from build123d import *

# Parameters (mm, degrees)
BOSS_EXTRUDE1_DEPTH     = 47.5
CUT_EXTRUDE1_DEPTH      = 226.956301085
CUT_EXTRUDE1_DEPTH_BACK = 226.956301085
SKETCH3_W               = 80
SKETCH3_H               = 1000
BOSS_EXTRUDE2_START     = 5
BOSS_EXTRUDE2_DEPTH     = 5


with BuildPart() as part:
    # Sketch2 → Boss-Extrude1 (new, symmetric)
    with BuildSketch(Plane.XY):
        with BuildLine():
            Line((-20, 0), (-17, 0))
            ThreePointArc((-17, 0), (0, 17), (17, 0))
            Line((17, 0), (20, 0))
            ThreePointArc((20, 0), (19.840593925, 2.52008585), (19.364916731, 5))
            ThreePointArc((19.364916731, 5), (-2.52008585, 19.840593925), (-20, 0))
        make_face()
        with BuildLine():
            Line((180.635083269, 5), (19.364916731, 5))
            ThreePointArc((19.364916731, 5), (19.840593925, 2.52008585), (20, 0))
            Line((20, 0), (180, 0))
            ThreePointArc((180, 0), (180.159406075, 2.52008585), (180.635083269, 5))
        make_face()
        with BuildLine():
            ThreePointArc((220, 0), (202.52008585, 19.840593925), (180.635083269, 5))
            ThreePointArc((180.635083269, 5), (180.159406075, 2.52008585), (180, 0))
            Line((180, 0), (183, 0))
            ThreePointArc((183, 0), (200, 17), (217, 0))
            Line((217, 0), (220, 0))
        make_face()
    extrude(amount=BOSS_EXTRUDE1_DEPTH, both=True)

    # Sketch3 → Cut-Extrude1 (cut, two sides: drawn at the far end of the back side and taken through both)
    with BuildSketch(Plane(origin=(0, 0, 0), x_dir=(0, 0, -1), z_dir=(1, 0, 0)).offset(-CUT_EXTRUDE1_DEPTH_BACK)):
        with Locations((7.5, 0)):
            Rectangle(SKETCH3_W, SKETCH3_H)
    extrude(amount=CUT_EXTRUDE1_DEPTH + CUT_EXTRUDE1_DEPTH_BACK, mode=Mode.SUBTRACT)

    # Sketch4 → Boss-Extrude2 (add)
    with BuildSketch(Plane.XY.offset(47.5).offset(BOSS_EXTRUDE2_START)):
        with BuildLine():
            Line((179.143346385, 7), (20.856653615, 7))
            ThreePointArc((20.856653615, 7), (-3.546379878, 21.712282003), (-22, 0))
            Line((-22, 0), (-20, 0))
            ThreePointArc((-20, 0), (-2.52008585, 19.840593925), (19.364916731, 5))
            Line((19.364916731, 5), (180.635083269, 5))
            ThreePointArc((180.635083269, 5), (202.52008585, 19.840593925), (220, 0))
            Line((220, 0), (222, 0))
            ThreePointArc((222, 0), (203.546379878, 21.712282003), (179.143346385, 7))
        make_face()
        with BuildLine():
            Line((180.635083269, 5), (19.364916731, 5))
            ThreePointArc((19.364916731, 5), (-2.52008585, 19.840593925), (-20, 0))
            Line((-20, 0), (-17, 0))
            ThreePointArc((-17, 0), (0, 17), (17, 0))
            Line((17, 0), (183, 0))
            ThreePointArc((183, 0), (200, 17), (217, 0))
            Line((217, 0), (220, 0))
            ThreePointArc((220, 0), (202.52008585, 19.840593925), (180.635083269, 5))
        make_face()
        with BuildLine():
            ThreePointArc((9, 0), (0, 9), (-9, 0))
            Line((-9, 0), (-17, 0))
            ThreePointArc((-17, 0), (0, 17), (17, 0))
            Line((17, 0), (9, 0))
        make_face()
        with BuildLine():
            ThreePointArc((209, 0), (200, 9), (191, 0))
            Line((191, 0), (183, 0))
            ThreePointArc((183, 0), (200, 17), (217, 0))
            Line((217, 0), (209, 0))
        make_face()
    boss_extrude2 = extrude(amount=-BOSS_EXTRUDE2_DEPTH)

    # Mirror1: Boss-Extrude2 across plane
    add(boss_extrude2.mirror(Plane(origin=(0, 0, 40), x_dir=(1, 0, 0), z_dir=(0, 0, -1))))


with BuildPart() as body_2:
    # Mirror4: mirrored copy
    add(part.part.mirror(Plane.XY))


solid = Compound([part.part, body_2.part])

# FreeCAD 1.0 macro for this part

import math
import FreeCAD as App
import Part
import Sketcher
Q = App.Units.Quantity

doc = App.newDocument("Part")
body = doc.addObject("PartDesign::Body", "Body")

# Sketch on XY plane
sketch1 = body.newObject("Sketcher::SketchObject", "Sketch")
sketch1.AttachmentSupport = (doc.getObject("XY_Plane"), [""])
sketch1.MapMode = "FlatFace"
sketch1.addGeometry([
    Part.LineSegment(App.Vector(-20, 0, 0), App.Vector(-17, 0, 0)),  # 0
    Part.ArcOfCircle(Part.Circle(App.Vector(0, 0, 0), App.Vector(0, 0, 1), 17), math.radians(0), math.radians(180)),  # 1
    Part.LineSegment(App.Vector(17, 0, 0), App.Vector(183, 0, 0)),  # 2
    Part.ArcOfCircle(Part.Circle(App.Vector(200, 0, 0), App.Vector(0, 0, 1), 17), math.radians(0), math.radians(180)),  # 3
    Part.LineSegment(App.Vector(217, 0, 0), App.Vector(220, 0, 0)),  # 4
    Part.ArcOfCircle(Part.Circle(App.Vector(200, 0, 0), App.Vector(0, 0, 1), 20), math.radians(0), math.radians(165.522488)),  # 5
    Part.LineSegment(App.Vector(180.635083, 5, 0), App.Vector(19.364917, 5, 0)),  # 6
    Part.ArcOfCircle(Part.Circle(App.Vector(0, 0, 0), App.Vector(0, 0, 1), 20), math.radians(14.477512), math.radians(180)),  # 7
], False)
sketch1.addConstraint([
    Sketcher.Constraint("Coincident", 0, 2, 1, 2),
    Sketcher.Constraint("Coincident", 1, 1, 2, 1),
    Sketcher.Constraint("Coincident", 2, 2, 3, 2),
    Sketcher.Constraint("Coincident", 3, 1, 4, 1),
    Sketcher.Constraint("Coincident", 4, 2, 5, 1),
    Sketcher.Constraint("Coincident", 5, 2, 6, 1),
    Sketcher.Constraint("Coincident", 6, 2, 7, 1),
    Sketcher.Constraint("Coincident", 7, 2, 0, 1),
    Sketcher.Constraint("Horizontal", 0),
    Sketcher.Constraint("Horizontal", 2),
    Sketcher.Constraint("Horizontal", 4),
    Sketcher.Constraint("Horizontal", 6),
    Sketcher.Constraint("Coincident", 1, 3, -1, 1),
    Sketcher.Constraint("Coincident", 7, 3, -1, 1),
    Sketcher.Constraint("Coincident", 5, 3, 3, 3),
    Sketcher.Constraint("Equal", 1, 3),
    Sketcher.Constraint("Equal", 5, 7),
    Sketcher.Constraint("PointOnObject", 3, 3, -1),
    Sketcher.Constraint("PointOnObject", 0, 2, -1),
    Sketcher.Constraint("PointOnObject", 1, 1, -1),
    Sketcher.Constraint("PointOnObject", 3, 1, -1),
    Sketcher.Constraint("Radius", 1, Q("17 mm")),
    Sketcher.Constraint("Radius", 5, Q("20 mm")),
    Sketcher.Constraint("DistanceX", 2, 1, 2, 2, Q("166 mm")),
    Sketcher.Constraint("DistanceY", -1, 1, 5, 2, Q("5 mm")),
])
pad1 = body.newObject("PartDesign::Pad", "Pad")
pad1.Profile = sketch1
pad1.Length = 95
pad1.Midplane = True

# Sketch on YZ plane
sketch2 = body.newObject("Sketcher::SketchObject", "Sketch001")
sketch2.AttachmentSupport = (doc.getObject("YZ_Plane"), [""])
sketch2.MapMode = "FlatFace"
sketch2.addGeometry([
    Part.LineSegment(App.Vector(500, 32.5, 0), App.Vector(-500, 32.5, 0)),
    Part.LineSegment(App.Vector(-500, 32.5, 0), App.Vector(-500, -47.5, 0)),
    Part.LineSegment(App.Vector(-500, -47.5, 0), App.Vector(500, -47.5, 0)),
    Part.LineSegment(App.Vector(500, -47.5, 0), App.Vector(500, 32.5, 0)),
], False)
sketch2.addConstraint([
    Sketcher.Constraint("Coincident", 0, 2, 1, 1),
    Sketcher.Constraint("Coincident", 1, 2, 2, 1),
    Sketcher.Constraint("Coincident", 2, 2, 3, 1),
    Sketcher.Constraint("Coincident", 3, 2, 0, 1),
    Sketcher.Constraint("Horizontal", 0),
    Sketcher.Constraint("Vertical", 1),
    Sketcher.Constraint("Horizontal", 2),
    Sketcher.Constraint("Vertical", 3),
    Sketcher.Constraint("DistanceX", 0, 2, 0, 1, Q("1000 mm")),
    Sketcher.Constraint("DistanceY", 1, 2, 1, 1, Q("80 mm")),
    Sketcher.Constraint("DistanceX", 0, 2, -1, 1, Q("500 mm")),
    Sketcher.Constraint("DistanceY", -1, 1, 0, 2, Q("32.5 mm")),
])
pocket1 = body.newObject("PartDesign::Pocket", "Pocket")
pocket1.Profile = sketch2
pocket1.Type = "ThroughAll"
pocket1.Midplane = True

# Sketch on XY plane
sketch3 = body.newObject("Sketcher::SketchObject", "Sketch002")
sketch3.AttachmentSupport = (doc.getObject("XY_Plane"), [""])
sketch3.MapMode = "FlatFace"
sketch3.AttachmentOffset = App.Placement(App.Vector(0, 0, 52.5), App.Rotation())
sketch3.addGeometry([
    Part.LineSegment(App.Vector(179.143346, 7, 0), App.Vector(20.856654, 7, 0)),  # 0
    Part.ArcOfCircle(Part.Circle(App.Vector(0, 0, 0), App.Vector(0, 0, 1), 22), math.radians(18.553005), math.radians(180)),  # 1
    Part.LineSegment(App.Vector(-22, 0, 0), App.Vector(-9, 0, 0)),  # 2
    Part.ArcOfCircle(Part.Circle(App.Vector(0, 0, 0), App.Vector(0, 0, 1), 9), math.radians(0), math.radians(180)),  # 3
    Part.LineSegment(App.Vector(9, 0, 0), App.Vector(191, 0, 0)),  # 4
    Part.ArcOfCircle(Part.Circle(App.Vector(200, 0, 0), App.Vector(0, 0, 1), 9), math.radians(0), math.radians(180)),  # 5
    Part.LineSegment(App.Vector(209, 0, 0), App.Vector(222, 0, 0)),  # 6
    Part.ArcOfCircle(Part.Circle(App.Vector(200, 0, 0), App.Vector(0, 0, 1), 22), math.radians(0), math.radians(161.446995)),  # 7
], False)
sketch3.addConstraint([
    Sketcher.Constraint("Coincident", 0, 2, 1, 1),
    Sketcher.Constraint("Coincident", 1, 2, 2, 1),
    Sketcher.Constraint("Coincident", 2, 2, 3, 2),
    Sketcher.Constraint("Coincident", 3, 1, 4, 1),
    Sketcher.Constraint("Coincident", 4, 2, 5, 2),
    Sketcher.Constraint("Coincident", 5, 1, 6, 1),
    Sketcher.Constraint("Coincident", 6, 2, 7, 1),
    Sketcher.Constraint("Coincident", 7, 2, 0, 1),
    Sketcher.Constraint("Horizontal", 0),
    Sketcher.Constraint("Horizontal", 2),
    Sketcher.Constraint("Horizontal", 4),
    Sketcher.Constraint("Horizontal", 6),
    Sketcher.Constraint("Coincident", 1, 3, -1, 1),
    Sketcher.Constraint("Coincident", 3, 3, -1, 1),
    Sketcher.Constraint("Coincident", 7, 3, 5, 3),
    Sketcher.Constraint("Equal", 3, 5),
    Sketcher.Constraint("Equal", 1, 7),
    Sketcher.Constraint("PointOnObject", 5, 3, -1),
    Sketcher.Constraint("PointOnObject", 1, 2, -1),
    Sketcher.Constraint("PointOnObject", 3, 1, -1),
    Sketcher.Constraint("PointOnObject", 5, 1, -1),
    Sketcher.Constraint("Radius", 1, Q("22 mm")),
    Sketcher.Constraint("Radius", 3, Q("9 mm")),
    Sketcher.Constraint("DistanceX", 4, 1, 4, 2, Q("182 mm")),
    Sketcher.Constraint("DistanceY", -1, 1, 0, 2, Q("7 mm")),
])
pad2 = body.newObject("PartDesign::Pad", "Pad001")
pad2.Profile = sketch3
pad2.Length = 5
pad2.Reversed = True
doc.recompute()

datumplane = body.newObject("PartDesign::Plane", "DatumPlane")
datumplane.AttachmentSupport = (doc.getObject("XY_Plane"), [""])
datumplane.MapMode = "FlatFace"
datumplane.AttachmentOffset = App.Placement(App.Vector(0, 0, 40), App.Rotation())
mirrored = body.newObject("PartDesign::Mirrored", "Mirrored")
mirrored.Originals = [pad2]
mirrored.MirrorPlane = (datumplane, [""])
body.Tip = mirrored
body2 = doc.addObject("PartDesign::Body", "Body001")
doc.recompute()

mirroring = doc.addObject("Part::Mirroring", "Mirroring")
mirroring.Source = body
mirroring.Base = App.Vector(0, 0, 0)
mirroring.Normal = App.Vector(0, 0, 1)
body2.BaseFeature = mirroring
doc.recompute()
mirroring.Visibility = False

doc.recompute()
